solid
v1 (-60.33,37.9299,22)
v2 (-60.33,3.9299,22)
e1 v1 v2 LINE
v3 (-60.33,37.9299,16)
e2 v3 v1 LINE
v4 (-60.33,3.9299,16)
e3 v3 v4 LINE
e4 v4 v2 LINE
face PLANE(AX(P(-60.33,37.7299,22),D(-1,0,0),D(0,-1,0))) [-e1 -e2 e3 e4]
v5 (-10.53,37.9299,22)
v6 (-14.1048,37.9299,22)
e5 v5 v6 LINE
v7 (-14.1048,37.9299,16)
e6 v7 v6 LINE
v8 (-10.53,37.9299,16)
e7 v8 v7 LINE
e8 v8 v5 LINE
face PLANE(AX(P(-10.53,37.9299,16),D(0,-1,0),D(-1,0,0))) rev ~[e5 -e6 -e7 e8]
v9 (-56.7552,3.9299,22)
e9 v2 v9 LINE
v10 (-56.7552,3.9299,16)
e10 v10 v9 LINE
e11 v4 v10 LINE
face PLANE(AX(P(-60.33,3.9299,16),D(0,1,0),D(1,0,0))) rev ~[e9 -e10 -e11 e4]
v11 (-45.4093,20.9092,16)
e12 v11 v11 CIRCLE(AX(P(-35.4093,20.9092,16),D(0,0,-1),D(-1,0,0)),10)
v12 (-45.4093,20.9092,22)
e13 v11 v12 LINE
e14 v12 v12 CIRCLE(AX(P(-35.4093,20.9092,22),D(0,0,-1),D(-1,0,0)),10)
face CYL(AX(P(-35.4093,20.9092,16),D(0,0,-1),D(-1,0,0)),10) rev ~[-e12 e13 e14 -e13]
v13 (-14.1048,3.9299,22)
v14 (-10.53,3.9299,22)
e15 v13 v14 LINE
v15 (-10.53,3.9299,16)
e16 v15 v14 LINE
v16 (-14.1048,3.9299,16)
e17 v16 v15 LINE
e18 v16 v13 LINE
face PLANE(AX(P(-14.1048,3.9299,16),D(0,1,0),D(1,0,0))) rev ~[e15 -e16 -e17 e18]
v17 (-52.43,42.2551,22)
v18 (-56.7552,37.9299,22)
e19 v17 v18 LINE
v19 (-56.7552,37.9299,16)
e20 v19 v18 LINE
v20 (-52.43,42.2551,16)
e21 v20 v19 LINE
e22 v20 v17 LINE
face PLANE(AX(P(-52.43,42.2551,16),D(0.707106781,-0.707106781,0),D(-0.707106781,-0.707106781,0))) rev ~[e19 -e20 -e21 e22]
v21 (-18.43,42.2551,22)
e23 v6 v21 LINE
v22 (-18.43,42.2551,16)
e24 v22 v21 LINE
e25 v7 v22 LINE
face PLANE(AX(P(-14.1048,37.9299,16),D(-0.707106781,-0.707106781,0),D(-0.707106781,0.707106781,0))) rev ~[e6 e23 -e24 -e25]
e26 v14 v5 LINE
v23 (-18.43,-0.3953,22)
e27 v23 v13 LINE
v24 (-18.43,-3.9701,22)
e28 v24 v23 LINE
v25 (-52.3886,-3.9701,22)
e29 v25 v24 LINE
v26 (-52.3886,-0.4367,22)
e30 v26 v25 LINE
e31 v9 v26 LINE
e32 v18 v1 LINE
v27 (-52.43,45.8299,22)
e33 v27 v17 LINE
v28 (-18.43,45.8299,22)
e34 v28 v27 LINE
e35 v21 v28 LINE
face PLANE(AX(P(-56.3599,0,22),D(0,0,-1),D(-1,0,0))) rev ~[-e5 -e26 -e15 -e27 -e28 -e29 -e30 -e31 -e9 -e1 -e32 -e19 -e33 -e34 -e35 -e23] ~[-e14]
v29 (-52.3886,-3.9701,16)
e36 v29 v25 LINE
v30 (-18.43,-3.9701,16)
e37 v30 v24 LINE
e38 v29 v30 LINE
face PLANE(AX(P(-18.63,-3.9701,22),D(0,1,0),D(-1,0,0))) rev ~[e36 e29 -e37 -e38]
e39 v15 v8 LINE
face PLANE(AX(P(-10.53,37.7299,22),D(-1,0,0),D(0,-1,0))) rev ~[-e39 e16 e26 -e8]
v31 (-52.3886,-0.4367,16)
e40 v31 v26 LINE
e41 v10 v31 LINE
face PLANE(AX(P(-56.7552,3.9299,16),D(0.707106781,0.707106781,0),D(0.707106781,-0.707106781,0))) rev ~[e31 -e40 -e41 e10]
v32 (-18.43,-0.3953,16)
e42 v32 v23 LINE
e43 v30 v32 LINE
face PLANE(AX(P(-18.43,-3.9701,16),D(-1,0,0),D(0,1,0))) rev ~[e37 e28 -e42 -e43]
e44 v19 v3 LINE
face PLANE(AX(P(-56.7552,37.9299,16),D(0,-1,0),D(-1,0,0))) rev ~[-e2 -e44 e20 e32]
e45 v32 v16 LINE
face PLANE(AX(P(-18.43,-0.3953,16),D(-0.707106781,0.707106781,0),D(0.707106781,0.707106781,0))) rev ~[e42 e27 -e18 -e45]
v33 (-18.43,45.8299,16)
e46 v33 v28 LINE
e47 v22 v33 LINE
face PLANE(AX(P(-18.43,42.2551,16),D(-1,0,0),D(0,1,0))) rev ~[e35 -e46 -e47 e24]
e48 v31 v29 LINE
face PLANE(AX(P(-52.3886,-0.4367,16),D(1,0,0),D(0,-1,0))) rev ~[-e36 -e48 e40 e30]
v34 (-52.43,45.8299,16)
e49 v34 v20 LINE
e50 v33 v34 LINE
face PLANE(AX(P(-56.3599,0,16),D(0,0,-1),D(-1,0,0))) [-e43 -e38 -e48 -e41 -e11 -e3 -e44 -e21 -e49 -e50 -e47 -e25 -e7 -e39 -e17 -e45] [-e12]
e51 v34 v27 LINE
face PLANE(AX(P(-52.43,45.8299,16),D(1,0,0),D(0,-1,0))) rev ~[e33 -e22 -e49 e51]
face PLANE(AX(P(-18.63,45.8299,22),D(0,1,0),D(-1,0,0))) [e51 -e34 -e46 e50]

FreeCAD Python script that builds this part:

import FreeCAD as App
import Part
import Sketcher
from FreeCAD import Vector
Q = App.Units.Quantity


def add_polygon(sketch, points):
    """Adds a closed chain of lines whose ends are joined by coincident constraints."""
    first, n = sketch.GeometryCount, len(points)
    for a, b in zip(points, points[1:] + points[:1]):
        sketch.addGeometry(Part.LineSegment(App.Vector(*a, 0), App.Vector(*b, 0)), False)
    for i in range(n):
        sketch.addConstraint(Sketcher.Constraint("Coincident", first + i, 2, first + (i + 1) % n, 1))

doc = App.newDocument("Part")
body = doc.addObject("PartDesign::Body", "Body")

# Sketch on XY plane
sketch1 = doc.addObject("Sketcher::SketchObject", "Sketch")
body.addObject(sketch1)
sketch1.AttachmentSupport = (doc.XY_Plane, [""])
sketch1.MapMode = "FlatFace"
sketch1.AttachmentOffset = App.Placement(Vector(0, 0, 22), App.Rotation())
add_polygon(sketch1, [(-52.189, -0.354), (-56.672, 4.13), (-60.33, 4.13), (-60.33, 37.73), (-56.672, 37.73), (-52.23, 42.172), (-52.23, 45.83), (-18.63, 45.83), (-18.63, 42.172), (-14.188, 37.73), (-10.53, 37.73), (-10.53, 4.13), (-14.188, 4.13), (-18.671, -0.354), (-18.63, -0.354), (-18.63, -3.97), (-52.189, -3.97)])  # lines 0-16
sketch1.addConstraint([
    Sketcher.Constraint("Horizontal", 1),
    Sketcher.Constraint("Vertical", 2),
    Sketcher.Constraint("Horizontal", 3),
    Sketcher.Constraint("Vertical", 5),
    Sketcher.Constraint("Horizontal", 6),
    Sketcher.Constraint("Vertical", 7),
    Sketcher.Constraint("Horizontal", 9),
    Sketcher.Constraint("Vertical", 10),
    Sketcher.Constraint("Horizontal", 11),
    Sketcher.Constraint("Horizontal", 13),
    Sketcher.Constraint("Vertical", 14),
    Sketcher.Constraint("Horizontal", 15),
    Sketcher.Constraint("Vertical", 16),
    Sketcher.Constraint("Perpendicular", 0, 4),
    Sketcher.Constraint("Perpendicular", 4, 8),
    Sketcher.Constraint("Perpendicular", 8, 12),
    Sketcher.Constraint("Horizontal", 4, 2, 7, 2),
    Sketcher.Constraint("Horizontal", 3, 2, 8, 2),
    Sketcher.Constraint("Horizontal", 1, 2, 10, 2),
    Sketcher.Constraint("Horizontal", 13, 2, 16, 2),
    Sketcher.Constraint("Vertical", 0, 2, 3, 2),
    Sketcher.Constraint("Vertical", 8, 2, 11, 2),
    Sketcher.Constraint("Vertical", 7, 2, 13, 2),
    Sketcher.Constraint("Equal", 3, 9),
    Sketcher.Constraint("Equal", 6, 2),
    Sketcher.Constraint("Equal", 11, 5),
    Sketcher.Constraint("Equal", 4, 8),
    Sketcher.Constraint("DistanceX", 6, 1, 6, 2, Q("33.6 mm")),
    Sketcher.Constraint("DistanceX", 2, 2, 4, 2, Q("8.1 mm")),
    Sketcher.Constraint("DistanceY", 14, 2, 11, 2, Q("8.1 mm")),
    Sketcher.Constraint("DistanceY", -1, 1, 0, 2, Q("4.13 mm")),
    Sketcher.Constraint("DistanceX", 1, 2, -1, 1, Q("60.33 mm")),
    Sketcher.Constraint("Distance", 0, Q("6.341 mm")),
    Sketcher.Constraint("DistanceX", 1, 2, 1, 1, Q("3.6577 mm")),
])
pad1 = doc.addObject("PartDesign::Pad", "Pad")
body.addObject(pad1)
pad1.Profile = sketch1
pad1.Length = 6
pad1.Reversed = True

# Sketch on XY plane
sketch2 = doc.addObject("Sketcher::SketchObject", "Sketch001")
body.addObject(sketch2)
sketch2.AttachmentSupport = (doc.XY_Plane, [""])
sketch2.MapMode = "FlatFace"
sketch2.AttachmentOffset = App.Placement(Vector(0, 0, 16), App.Rotation())
add_polygon(sketch2, [(-60.33, 3.93), (-60.33, 4.13), (-56.672, 4.13), (-52.189, -0.354), (-52.189, -3.97), (-52.389, -3.97), (-52.389, -0.437), (-56.755, 3.93)])  # lines 0-7
add_polygon(sketch2, [(-52.43, 45.83), (-52.23, 45.83), (-52.23, 42.172), (-56.672, 37.73), (-60.33, 37.73), (-60.33, 37.93), (-56.755, 37.93), (-52.43, 42.255)])  # lines 8-15
add_polygon(sketch2, [(-14.188, 37.73), (-18.63, 42.172), (-18.63, 45.83), (-18.43, 45.83), (-18.43, 42.255), (-14.105, 37.93), (-10.53, 37.93), (-10.53, 37.73)])  # lines 16-23
add_polygon(sketch2, [(-14.188, 4.13), (-10.53, 4.13), (-10.53, 3.93), (-14.105, 3.93), (-18.43, -0.395), (-18.43, -3.97), (-18.63, -3.97), (-18.63, -0.354), (-18.671, -0.354)])  # lines 24-32
sketch2.addConstraint([
    Sketcher.Constraint("Vertical", 0),
    Sketcher.Constraint("Horizontal", 1),
    Sketcher.Constraint("Vertical", 3),
    Sketcher.Constraint("Horizontal", 4),
    Sketcher.Constraint("Vertical", 5),
    Sketcher.Constraint("Horizontal", 7),
    Sketcher.Constraint("Horizontal", 8),
    Sketcher.Constraint("Vertical", 9),
    Sketcher.Constraint("Horizontal", 11),
    Sketcher.Constraint("Vertical", 12),
    Sketcher.Constraint("Horizontal", 13),
    Sketcher.Constraint("Vertical", 15),
    Sketcher.Constraint("Vertical", 17),
    Sketcher.Constraint("Horizontal", 18),
    Sketcher.Constraint("Vertical", 19),
    Sketcher.Constraint("Horizontal", 21),
    Sketcher.Constraint("Vertical", 22),
    Sketcher.Constraint("Horizontal", 23),
    Sketcher.Constraint("Horizontal", 24),
    Sketcher.Constraint("Vertical", 25),
    Sketcher.Constraint("Horizontal", 26),
    Sketcher.Constraint("Vertical", 28),
    Sketcher.Constraint("Horizontal", 29),
    Sketcher.Constraint("Vertical", 30),
    Sketcher.Constraint("Horizontal", 31),
    Sketcher.Constraint("Parallel", 2, 6),
    Sketcher.Constraint("Perpendicular", 6, 10),
    Sketcher.Constraint("Parallel", 10, 14),
    Sketcher.Constraint("Perpendicular", 14, 16),
    Sketcher.Constraint("Parallel", 16, 20),
    Sketcher.Constraint("Perpendicular", 20, 27),
    Sketcher.Constraint("Parallel", 27, 32),
    Sketcher.Constraint("Horizontal", 9, 2, 16, 2),
    Sketcher.Constraint("Horizontal", 15, 2, 17, 2),
    Sketcher.Constraint("Horizontal", 14, 2, 19, 2),
    Sketcher.Constraint("Horizontal", 13, 2, 20, 2),
    Sketcher.Constraint("Horizontal", 11, 2, 22, 2),
    Sketcher.Constraint("Horizontal", 1, 2, 24, 2),
    Sketcher.Constraint("Horizontal", 7, 2, 25, 2),
    Sketcher.Constraint("Horizontal", 4, 2, 28, 2),
    Sketcher.Constraint("Horizontal", 2, 2, 30, 2),
    Sketcher.Constraint("Vertical", 1, 2, 10, 2),
    Sketcher.Constraint("Vertical", 7, 2, 11, 2),
    Sketcher.Constraint("Vertical", 6, 2, 13, 2),
    Sketcher.Constraint("Vertical", 22, 2, 24, 2),
    Sketcher.Constraint("Vertical", 20, 2, 26, 2),
    Sketcher.Constraint("Vertical", 19, 2, 27, 2),
    Sketcher.Constraint("Vertical", 17, 2, 29, 2),
    Sketcher.Constraint("Vertical", 23, 2, 32, 2),
    Sketcher.Constraint("Equal", 4, 8),
    Sketcher.Constraint("Equal", 8, 18),
    Sketcher.Constraint("Equal", 13, 21),
    Sketcher.Constraint("Equal", 11, 23),
    Sketcher.Constraint("Equal", 29, 0),
    Sketcher.Constraint("Equal", 24, 9),
    Sketcher.Constraint("Equal", 0, 12),
    Sketcher.Constraint("Equal", 19, 28),
    Sketcher.Constraint("DistanceX", 4, 2, 4, 1, Q("0.2 mm")),
    Sketcher.Constraint("DistanceX", 15, 2, 18, 2, Q("34 mm")),
    Sketcher.Constraint("DistanceY", 25, 2, 21, 2, Q("34 mm")),
    Sketcher.Constraint("DistanceY", 3, 2, 1, 2, Q("8.1 mm")),
    Sketcher.Constraint("DistanceX", 0, 2, -1, 1, Q("60.33 mm")),
    Sketcher.Constraint("DistanceY", -1, 1, 0, 2, Q("4.13 mm")),
    Sketcher.Constraint("Distance", 2, Q("6.341 mm")),
    Sketcher.Constraint("DistanceX", 1, 1, 1, 2, Q("3.6577 mm")),
    Sketcher.Constraint("DistanceX", 7, 2, 7, 1, Q("3.5748 mm")),
])
pad2 = doc.addObject("PartDesign::Pad", "Pad001")
body.addObject(pad2)
pad2.Profile = sketch2
pad2.Length = 6

# Sketch on XY plane
sketch3 = doc.addObject("Sketcher::SketchObject", "Sketch002")
body.addObject(sketch3)
sketch3.AttachmentSupport = (doc.XY_Plane, [""])
sketch3.MapMode = "FlatFace"
sketch3.AttachmentOffset = App.Placement(Vector(0, 0, 16), App.Rotation())
sketch3.addGeometry(Part.Circle(Vector(-35, 21, 0), Vector(0, 0, 1), 10), False)
sketch3.addConstraint([
    Sketcher.Constraint("Diameter", 0, Q("20 mm")),
    Sketcher.Constraint("DistanceX", 0, 3, -1, 1, Q("35.4093 mm")),
    Sketcher.Constraint("DistanceY", -1, 1, 0, 3, Q("20.9092 mm")),
])
pocket1 = doc.addObject("PartDesign::Pocket", "Pocket")
body.addObject(pocket1)
pocket1.Profile = sketch3
pocket1.Length = 10
pocket1.Reversed = True

doc.recompute()
